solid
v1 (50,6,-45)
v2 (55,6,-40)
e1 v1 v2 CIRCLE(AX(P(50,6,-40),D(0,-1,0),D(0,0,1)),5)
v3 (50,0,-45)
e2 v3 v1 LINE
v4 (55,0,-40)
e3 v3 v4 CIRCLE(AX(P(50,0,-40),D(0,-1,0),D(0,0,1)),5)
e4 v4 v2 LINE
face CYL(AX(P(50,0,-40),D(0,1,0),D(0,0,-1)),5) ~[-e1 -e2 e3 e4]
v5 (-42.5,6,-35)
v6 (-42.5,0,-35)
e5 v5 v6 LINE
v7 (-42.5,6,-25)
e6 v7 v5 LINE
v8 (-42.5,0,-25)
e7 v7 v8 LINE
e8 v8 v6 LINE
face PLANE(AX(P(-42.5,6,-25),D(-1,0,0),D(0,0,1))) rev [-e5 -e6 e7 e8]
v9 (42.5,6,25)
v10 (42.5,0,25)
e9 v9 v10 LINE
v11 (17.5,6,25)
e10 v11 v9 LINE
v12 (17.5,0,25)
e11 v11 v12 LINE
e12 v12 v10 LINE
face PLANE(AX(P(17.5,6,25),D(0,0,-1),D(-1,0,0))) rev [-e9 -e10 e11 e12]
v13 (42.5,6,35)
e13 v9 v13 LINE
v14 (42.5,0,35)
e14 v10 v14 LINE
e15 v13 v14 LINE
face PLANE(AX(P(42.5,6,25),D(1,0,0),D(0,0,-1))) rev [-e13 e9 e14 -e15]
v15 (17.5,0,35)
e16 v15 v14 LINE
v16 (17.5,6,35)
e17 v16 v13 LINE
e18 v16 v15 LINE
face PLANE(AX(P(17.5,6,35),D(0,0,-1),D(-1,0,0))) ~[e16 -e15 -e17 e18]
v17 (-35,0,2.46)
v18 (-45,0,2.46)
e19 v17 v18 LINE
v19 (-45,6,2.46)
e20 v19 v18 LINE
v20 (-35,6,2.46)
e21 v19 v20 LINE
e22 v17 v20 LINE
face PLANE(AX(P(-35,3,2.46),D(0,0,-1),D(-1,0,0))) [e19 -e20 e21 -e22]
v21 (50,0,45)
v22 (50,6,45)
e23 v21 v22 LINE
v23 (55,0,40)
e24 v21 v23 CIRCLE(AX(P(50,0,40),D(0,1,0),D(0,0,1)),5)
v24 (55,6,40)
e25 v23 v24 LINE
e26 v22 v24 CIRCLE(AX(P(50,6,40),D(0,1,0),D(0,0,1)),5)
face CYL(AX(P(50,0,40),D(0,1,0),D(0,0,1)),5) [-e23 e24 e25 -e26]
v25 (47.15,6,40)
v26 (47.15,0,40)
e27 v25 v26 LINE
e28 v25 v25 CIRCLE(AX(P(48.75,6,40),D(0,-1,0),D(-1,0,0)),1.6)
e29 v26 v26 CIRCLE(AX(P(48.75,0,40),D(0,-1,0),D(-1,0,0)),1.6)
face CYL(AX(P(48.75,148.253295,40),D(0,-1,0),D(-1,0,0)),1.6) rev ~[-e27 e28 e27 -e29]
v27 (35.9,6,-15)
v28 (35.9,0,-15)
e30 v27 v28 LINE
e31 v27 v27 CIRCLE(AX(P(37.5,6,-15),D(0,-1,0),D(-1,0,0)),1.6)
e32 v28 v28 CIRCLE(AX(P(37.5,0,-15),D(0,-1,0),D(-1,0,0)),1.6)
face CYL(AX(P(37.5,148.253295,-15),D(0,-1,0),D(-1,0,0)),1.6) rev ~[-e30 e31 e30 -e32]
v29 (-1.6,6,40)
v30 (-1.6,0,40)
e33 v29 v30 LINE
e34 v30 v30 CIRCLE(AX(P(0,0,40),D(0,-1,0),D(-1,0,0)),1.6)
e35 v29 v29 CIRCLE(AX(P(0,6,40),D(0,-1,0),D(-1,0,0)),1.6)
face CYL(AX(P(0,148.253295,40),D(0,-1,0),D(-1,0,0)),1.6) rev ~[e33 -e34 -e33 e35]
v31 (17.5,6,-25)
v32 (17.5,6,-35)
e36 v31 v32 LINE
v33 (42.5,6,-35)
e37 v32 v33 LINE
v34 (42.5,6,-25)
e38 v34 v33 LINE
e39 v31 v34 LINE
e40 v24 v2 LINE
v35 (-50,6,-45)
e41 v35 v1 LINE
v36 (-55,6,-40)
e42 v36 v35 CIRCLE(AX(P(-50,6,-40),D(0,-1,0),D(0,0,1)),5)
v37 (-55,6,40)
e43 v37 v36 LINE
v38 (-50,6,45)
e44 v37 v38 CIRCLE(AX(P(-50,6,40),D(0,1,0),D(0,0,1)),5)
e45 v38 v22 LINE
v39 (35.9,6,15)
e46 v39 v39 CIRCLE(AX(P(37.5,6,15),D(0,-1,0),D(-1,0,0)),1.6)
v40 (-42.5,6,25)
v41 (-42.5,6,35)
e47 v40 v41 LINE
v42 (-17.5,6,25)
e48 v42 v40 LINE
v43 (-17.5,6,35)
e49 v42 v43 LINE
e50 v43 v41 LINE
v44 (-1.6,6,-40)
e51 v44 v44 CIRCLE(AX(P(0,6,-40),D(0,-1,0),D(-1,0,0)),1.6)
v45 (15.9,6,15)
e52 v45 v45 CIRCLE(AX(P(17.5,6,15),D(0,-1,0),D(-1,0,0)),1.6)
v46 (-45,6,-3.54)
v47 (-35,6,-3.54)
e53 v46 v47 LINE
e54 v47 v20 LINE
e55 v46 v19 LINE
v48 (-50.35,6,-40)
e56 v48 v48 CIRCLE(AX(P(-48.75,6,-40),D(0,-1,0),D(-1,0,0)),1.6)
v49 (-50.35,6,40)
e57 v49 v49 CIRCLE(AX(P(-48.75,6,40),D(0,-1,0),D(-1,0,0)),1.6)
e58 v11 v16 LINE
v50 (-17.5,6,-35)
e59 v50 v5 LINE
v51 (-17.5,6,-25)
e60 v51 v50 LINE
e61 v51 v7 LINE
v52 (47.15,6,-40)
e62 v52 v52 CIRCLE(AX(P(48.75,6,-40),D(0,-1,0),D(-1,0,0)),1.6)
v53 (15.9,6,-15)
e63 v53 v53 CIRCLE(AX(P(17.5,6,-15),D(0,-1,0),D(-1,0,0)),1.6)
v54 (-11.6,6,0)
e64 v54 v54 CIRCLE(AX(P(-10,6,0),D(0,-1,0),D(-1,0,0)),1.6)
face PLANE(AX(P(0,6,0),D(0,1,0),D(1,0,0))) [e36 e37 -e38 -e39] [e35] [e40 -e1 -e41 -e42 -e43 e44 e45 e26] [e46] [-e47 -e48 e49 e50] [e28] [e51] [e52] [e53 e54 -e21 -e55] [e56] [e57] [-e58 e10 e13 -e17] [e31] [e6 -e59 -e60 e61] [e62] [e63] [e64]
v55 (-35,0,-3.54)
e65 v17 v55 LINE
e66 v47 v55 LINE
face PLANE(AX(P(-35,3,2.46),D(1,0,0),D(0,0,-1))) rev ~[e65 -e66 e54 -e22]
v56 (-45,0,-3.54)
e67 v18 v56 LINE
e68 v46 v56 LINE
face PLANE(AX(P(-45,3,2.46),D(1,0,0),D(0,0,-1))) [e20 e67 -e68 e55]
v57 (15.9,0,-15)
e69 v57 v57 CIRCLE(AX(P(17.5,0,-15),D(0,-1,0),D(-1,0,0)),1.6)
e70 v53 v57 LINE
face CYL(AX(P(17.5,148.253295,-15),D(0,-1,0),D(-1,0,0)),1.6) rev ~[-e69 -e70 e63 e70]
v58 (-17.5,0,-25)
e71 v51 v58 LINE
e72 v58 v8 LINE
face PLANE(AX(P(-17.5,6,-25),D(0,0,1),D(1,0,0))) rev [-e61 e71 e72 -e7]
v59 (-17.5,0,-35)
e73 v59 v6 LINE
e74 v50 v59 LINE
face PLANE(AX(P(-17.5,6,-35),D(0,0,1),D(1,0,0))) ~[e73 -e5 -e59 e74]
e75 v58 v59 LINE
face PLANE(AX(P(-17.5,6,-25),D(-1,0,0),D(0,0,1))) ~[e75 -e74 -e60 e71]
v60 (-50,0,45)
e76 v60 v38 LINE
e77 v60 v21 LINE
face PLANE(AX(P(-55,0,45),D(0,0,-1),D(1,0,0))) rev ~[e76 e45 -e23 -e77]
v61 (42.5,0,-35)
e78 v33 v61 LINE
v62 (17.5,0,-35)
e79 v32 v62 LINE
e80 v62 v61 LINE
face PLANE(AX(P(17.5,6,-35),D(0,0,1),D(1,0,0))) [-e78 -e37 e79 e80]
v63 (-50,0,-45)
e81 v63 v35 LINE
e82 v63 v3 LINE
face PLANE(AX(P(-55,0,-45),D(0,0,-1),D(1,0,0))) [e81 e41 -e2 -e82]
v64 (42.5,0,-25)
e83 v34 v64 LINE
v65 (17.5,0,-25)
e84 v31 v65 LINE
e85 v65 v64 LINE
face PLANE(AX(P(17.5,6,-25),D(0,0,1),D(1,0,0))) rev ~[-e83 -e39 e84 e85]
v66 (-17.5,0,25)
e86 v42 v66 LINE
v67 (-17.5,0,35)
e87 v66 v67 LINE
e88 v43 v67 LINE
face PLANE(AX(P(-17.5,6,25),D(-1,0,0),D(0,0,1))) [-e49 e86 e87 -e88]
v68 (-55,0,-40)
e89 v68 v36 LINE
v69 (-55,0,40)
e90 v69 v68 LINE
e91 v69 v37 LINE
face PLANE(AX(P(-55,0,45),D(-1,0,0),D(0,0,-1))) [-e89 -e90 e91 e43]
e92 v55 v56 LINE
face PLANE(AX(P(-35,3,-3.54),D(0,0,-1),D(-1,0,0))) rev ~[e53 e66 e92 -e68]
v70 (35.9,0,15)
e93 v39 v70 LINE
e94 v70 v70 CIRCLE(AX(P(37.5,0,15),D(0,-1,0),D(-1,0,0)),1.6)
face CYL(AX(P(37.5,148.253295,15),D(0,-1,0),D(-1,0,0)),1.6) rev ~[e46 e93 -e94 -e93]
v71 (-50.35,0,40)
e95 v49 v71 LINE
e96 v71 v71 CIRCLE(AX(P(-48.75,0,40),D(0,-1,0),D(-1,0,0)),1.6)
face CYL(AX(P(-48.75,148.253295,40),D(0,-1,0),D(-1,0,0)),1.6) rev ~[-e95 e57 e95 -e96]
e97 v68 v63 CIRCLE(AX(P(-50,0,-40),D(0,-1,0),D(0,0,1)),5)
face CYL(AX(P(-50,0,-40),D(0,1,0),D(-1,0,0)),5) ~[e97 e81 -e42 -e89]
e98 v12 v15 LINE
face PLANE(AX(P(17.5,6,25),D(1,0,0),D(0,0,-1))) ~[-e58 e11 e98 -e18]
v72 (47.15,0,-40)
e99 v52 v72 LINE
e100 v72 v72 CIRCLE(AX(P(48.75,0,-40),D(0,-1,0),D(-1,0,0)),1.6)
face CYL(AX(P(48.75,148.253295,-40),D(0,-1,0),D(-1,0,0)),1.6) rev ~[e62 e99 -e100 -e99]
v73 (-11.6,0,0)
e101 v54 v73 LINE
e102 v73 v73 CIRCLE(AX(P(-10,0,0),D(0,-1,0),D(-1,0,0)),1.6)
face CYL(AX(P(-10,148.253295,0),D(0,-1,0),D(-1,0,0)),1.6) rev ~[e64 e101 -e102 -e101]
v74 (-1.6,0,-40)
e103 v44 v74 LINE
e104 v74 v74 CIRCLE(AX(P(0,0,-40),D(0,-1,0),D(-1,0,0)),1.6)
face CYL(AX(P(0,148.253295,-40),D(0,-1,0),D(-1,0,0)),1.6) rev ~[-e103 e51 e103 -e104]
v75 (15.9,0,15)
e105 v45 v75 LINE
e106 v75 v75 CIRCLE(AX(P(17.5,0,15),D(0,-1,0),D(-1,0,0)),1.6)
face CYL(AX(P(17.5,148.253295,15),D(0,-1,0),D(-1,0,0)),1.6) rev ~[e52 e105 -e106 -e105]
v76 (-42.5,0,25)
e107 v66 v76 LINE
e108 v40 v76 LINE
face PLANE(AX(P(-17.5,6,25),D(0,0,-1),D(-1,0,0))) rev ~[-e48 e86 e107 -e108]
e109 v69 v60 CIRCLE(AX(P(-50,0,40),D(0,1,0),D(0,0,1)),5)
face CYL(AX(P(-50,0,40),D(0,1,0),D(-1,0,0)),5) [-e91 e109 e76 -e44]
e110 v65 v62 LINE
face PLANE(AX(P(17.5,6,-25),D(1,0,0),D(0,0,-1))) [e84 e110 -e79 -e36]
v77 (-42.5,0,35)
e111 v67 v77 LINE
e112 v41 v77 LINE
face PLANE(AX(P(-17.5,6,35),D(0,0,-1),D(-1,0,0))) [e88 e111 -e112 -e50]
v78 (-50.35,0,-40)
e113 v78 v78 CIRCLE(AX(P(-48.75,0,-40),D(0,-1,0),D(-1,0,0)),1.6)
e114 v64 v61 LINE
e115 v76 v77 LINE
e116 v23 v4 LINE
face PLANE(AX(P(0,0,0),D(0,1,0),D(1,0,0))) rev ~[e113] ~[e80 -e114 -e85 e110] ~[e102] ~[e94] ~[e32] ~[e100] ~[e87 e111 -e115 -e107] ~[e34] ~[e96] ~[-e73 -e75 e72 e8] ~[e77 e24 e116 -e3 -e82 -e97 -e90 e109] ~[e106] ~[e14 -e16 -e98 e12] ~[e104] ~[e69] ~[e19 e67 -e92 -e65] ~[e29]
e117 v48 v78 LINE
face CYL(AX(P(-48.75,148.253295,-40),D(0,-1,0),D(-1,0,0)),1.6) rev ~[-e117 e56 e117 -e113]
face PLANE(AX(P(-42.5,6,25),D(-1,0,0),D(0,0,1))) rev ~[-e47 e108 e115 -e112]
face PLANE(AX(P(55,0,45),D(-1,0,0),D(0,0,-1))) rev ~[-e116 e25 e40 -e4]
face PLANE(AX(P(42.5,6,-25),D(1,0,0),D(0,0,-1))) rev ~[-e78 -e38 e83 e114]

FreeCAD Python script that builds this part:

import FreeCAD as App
import Part
import Sketcher
from FreeCAD import Vector
Q = App.Units.Quantity


def edges_at(feature, points):
    """Names of the edges that pass closest to the given points."""
    edges = feature.Shape.Edges
    near = lambda p: min(range(len(edges)), key=lambda i: edges[i].distToShape(Part.Vertex(*p))[0])
    return sorted({f"Edge{near(p) + 1}" for p in points})


def add_polygon(sketch, points):
    """Adds a closed chain of lines whose ends are joined by coincident constraints."""
    first, n = sketch.GeometryCount, len(points)
    for a, b in zip(points, points[1:] + points[:1]):
        sketch.addGeometry(Part.LineSegment(App.Vector(*a, 0), App.Vector(*b, 0)), False)
    for i in range(n):
        sketch.addConstraint(Sketcher.Constraint("Coincident", first + i, 2, first + (i + 1) % n, 1))

doc = App.newDocument("Part")
body = doc.addObject("PartDesign::Body", "Body")

sketch1 = body.newObject("Sketcher::SketchObject", "Sketch")
sketch1.AttachmentSupport = (doc.getObject("XZ_Plane"), [""])
sketch1.MapMode = "FlatFace"
add_polygon(sketch1, [(-55, -45), (-55, 45), (55, 45), (55, -45)])
sketch1.addConstraint(Sketcher.Constraint("Vertical", 0))
sketch1.addConstraint(Sketcher.Constraint("Horizontal", 1))
sketch1.addConstraint(Sketcher.Constraint("Vertical", 2))
sketch1.addConstraint(Sketcher.Constraint("Horizontal", 3))
sketch1.addConstraint(Sketcher.Constraint("Symmetric", 0, 2, 2, 2, -1, 1))
sketch1.addConstraint(Sketcher.Constraint("DistanceX", 1, 1, 1, 2, Q("110 mm")))
sketch1.addConstraint(Sketcher.Constraint("DistanceY", 0, 1, 0, 2, Q("90 mm")))
pad1 = body.newObject("PartDesign::Pad", "Pad")
pad1.Profile = sketch1
pad1.Length = 6
pad1.Reversed = True

sketch2 = body.newObject("Sketcher::SketchObject", "Sketch001")
sketch2.AttachmentSupport = (doc.getObject("XZ_Plane"), [""])
sketch2.MapMode = "FlatFace"
sketch2.AttachmentOffset = App.Placement(Vector(0, 0, -6), App.Rotation())
add_polygon(sketch2, [(18, -35), (18, -25), (42, -25), (42, -35)])
sketch2.addConstraint(Sketcher.Constraint("Vertical", 0))
sketch2.addConstraint(Sketcher.Constraint("Horizontal", 1))
sketch2.addConstraint(Sketcher.Constraint("Vertical", 2))
sketch2.addConstraint(Sketcher.Constraint("Horizontal", 3))
sketch2.addConstraint(Sketcher.Constraint("DistanceX", 1, 1, 1, 2, Q("25 mm")))
sketch2.addConstraint(Sketcher.Constraint("DistanceY", 0, 1, 0, 2, Q("10 mm")))
sketch2.addConstraint(Sketcher.Constraint("DistanceY", 0, 2, -1, 1, Q("25 mm")))
sketch2.addConstraint(Sketcher.Constraint("DistanceX", -1, 1, 0, 2, Q("17.5 mm")))
pocket1 = body.newObject("PartDesign::Pocket", "Pocket")
pocket1.Profile = sketch2
pocket1.Type = "ThroughAll"
pocket1.Reversed = True
doc.recompute()

mirrored = body.newObject("PartDesign::Mirrored", "Mirrored")
mirrored.Originals = [pocket1]
mirrored.MirrorPlane = (doc.getObject("XY_Plane"), [""])
body.Tip = mirrored
doc.recompute()

mirrored2 = body.newObject("PartDesign::Mirrored", "Mirrored001")
mirrored2.Originals = [pocket1]
mirrored2.MirrorPlane = (doc.getObject("YZ_Plane"), [""])
body.Tip = mirrored2

sketch3 = body.newObject("Sketcher::SketchObject", "Sketch002")
sketch3.AttachmentSupport = (doc.getObject("XZ_Plane"), [""])
sketch3.MapMode = "FlatFace"
sketch3.AttachmentOffset = App.Placement(Vector(0, 0, -6), App.Rotation())
add_polygon(sketch3, [(-18, 35), (-18, 25), (-42, 25), (-42, 35)])
sketch3.addConstraint(Sketcher.Constraint("Vertical", 0))
sketch3.addConstraint(Sketcher.Constraint("Horizontal", 1))
sketch3.addConstraint(Sketcher.Constraint("Vertical", 2))
sketch3.addConstraint(Sketcher.Constraint("Horizontal", 3))
sketch3.addConstraint(Sketcher.Constraint("DistanceX", 1, 2, 1, 1, Q("25 mm")))
sketch3.addConstraint(Sketcher.Constraint("DistanceY", 0, 2, 0, 1, Q("10 mm")))
sketch3.addConstraint(Sketcher.Constraint("DistanceY", -1, 1, 0, 2, Q("25 mm")))
sketch3.addConstraint(Sketcher.Constraint("DistanceX", 0, 2, -1, 1, Q("17.5 mm")))
pocket2 = body.newObject("PartDesign::Pocket", "Pocket001")
pocket2.Profile = sketch3
pocket2.Type = "ThroughAll"
pocket2.Reversed = True

sketch4 = body.newObject("Sketcher::SketchObject", "Sketch003")
sketch4.AttachmentSupport = (doc.getObject("XZ_Plane"), [""])
sketch4.MapMode = "FlatFace"
sketch4.AttachmentOffset = App.Placement(Vector(0, 0, -6), App.Rotation())
sketch4.addGeometry(Part.Circle(Vector(17.5, -15, 0), Vector(0, 0, 1), 1.6), False)
sketch4.addGeometry(Part.Circle(Vector(37.5, -15, 0), Vector(0, 0, 1), 1.6), False)
sketch4.addGeometry(Part.Circle(Vector(17.5, 15, 0), Vector(0, 0, 1), 1.6), False)
sketch4.addGeometry(Part.Circle(Vector(37.5, 15, 0), Vector(0, 0, 1), 1.6), False)
sketch4.addConstraint(Sketcher.Constraint("Equal", 0, 1))
sketch4.addConstraint(Sketcher.Constraint("Equal", 1, 2))
sketch4.addConstraint(Sketcher.Constraint("Equal", 2, 3))
sketch4.addConstraint(Sketcher.Constraint("Symmetric", 0, 3, 2, 3, -1))
sketch4.addConstraint(Sketcher.Constraint("Symmetric", 1, 3, 3, 3, -1))
sketch4.addConstraint(Sketcher.Constraint("Horizontal", 0, 3, 1, 3))
sketch4.addConstraint(Sketcher.Constraint("Diameter", 0, Q("3.2 mm")))
sketch4.addConstraint(Sketcher.Constraint("DistanceY", 0, 3, -1, 1, Q("15 mm")))
sketch4.addConstraint(Sketcher.Constraint("DistanceX", 0, 3, 1, 3, Q("20 mm")))
sketch4.addConstraint(Sketcher.Constraint("DistanceX", -1, 1, 0, 3, Q("17.5 mm")))
doc.recompute()
hole = body.newObject("PartDesign::Hole", "Hole")
hole.Profile = sketch4
hole.ThreadType = "None"
hole.Diameter = 3.2
hole.DepthType = "ThroughAll"
hole.Reversed = True

sketch5 = body.newObject("Sketcher::SketchObject", "Sketch004")
sketch5.AttachmentSupport = (doc.getObject("XZ_Plane"), [""])
sketch5.MapMode = "FlatFace"
sketch5.AttachmentOffset = App.Placement(Vector(0, 0, -6), App.Rotation())
sketch5.addGeometry(Part.Circle(Vector(48.8, -40, 0), Vector(0, 0, 1), 1.6), False)
sketch5.addGeometry(Part.Circle(Vector(0, -40, 0), Vector(0, 0, 1), 1.6), False)
sketch5.addGeometry(Part.Circle(Vector(-48.8, -40, 0), Vector(0, 0, 1), 1.6), False)
sketch5.addGeometry(Part.Circle(Vector(-48.8, 40, 0), Vector(0, 0, 1), 1.6), False)
sketch5.addGeometry(Part.Circle(Vector(0, 40, 0), Vector(0, 0, 1), 1.6), False)
sketch5.addGeometry(Part.Circle(Vector(48.8, 40, 0), Vector(0, 0, 1), 1.6), False)
sketch5.addGeometry(Part.Circle(Vector(-10, 0, 0), Vector(0, 0, 1), 1.6), False)
sketch5.addConstraint(Sketcher.Constraint("Equal", 0, 1))
sketch5.addConstraint(Sketcher.Constraint("Equal", 1, 2))
sketch5.addConstraint(Sketcher.Constraint("Equal", 2, 3))
sketch5.addConstraint(Sketcher.Constraint("Equal", 3, 4))
sketch5.addConstraint(Sketcher.Constraint("Equal", 4, 5))
sketch5.addConstraint(Sketcher.Constraint("Equal", 5, 6))
sketch5.addConstraint(Sketcher.Constraint("Symmetric", 0, 3, 3, 3, -1, 1))
sketch5.addConstraint(Sketcher.Constraint("Symmetric", 1, 3, 4, 3, -1, 1))
sketch5.addConstraint(Sketcher.Constraint("Symmetric", 2, 3, 5, 3, -1, 1))
sketch5.addConstraint(Sketcher.Constraint("Symmetric", 0, 3, 2, 3, -2))
sketch5.addConstraint(Sketcher.Constraint("PointOnObject", 1, 3, -2))
sketch5.addConstraint(Sketcher.Constraint("PointOnObject", 6, 3, -1))
sketch5.addConstraint(Sketcher.Constraint("Horizontal", 0, 3, 1, 3))
sketch5.addConstraint(Sketcher.Constraint("Diameter", 0, Q("3.2 mm")))
sketch5.addConstraint(Sketcher.Constraint("DistanceY", 0, 3, -1, 1, Q("40 mm")))
sketch5.addConstraint(Sketcher.Constraint("DistanceX", 6, 3, -1, 1, Q("10 mm")))
sketch5.addConstraint(Sketcher.Constraint("DistanceX", 2, 3, 0, 3, Q("97.5 mm")))
doc.recompute()
hole2 = body.newObject("PartDesign::Hole", "Hole001")
hole2.Profile = sketch5
hole2.ThreadType = "None"
hole2.Diameter = 3.2
hole2.DepthType = "ThroughAll"
hole2.Reversed = True
doc.recompute()

fillet = body.newObject("PartDesign::Fillet", "Fillet")
fillet.Base = (hole2, edges_at(hole2, [
    (55, 3, 45),
    (-55, 3, 45),
    (-55, 3, -45),
    (55, 3, -45),
]))
fillet.Radius = 5

sketch6 = body.newObject("Sketcher::SketchObject", "Sketch005")
sketch6.AttachmentSupport = (doc.getObject("XZ_Plane"), [""])
sketch6.MapMode = "FlatFace"
sketch6.AttachmentOffset = App.Placement(Vector(0, 0, -3), App.Rotation())
add_polygon(sketch6, [(-35, -4), (-35, 2), (-45, 2), (-45, -4)])
sketch6.addConstraint(Sketcher.Constraint("Vertical", 0))
sketch6.addConstraint(Sketcher.Constraint("Horizontal", 1))
sketch6.addConstraint(Sketcher.Constraint("Vertical", 2))
sketch6.addConstraint(Sketcher.Constraint("Horizontal", 3))
sketch6.addConstraint(Sketcher.Constraint("DistanceX", 1, 2, 1, 1, Q("10 mm")))
sketch6.addConstraint(Sketcher.Constraint("DistanceY", 0, 1, 0, 2, Q("6 mm")))
sketch6.addConstraint(Sketcher.Constraint("DistanceX", 0, 2, -1, 1, Q("35 mm")))
sketch6.addConstraint(Sketcher.Constraint("DistanceY", -1, 1, 0, 2, Q("2.46 mm")))
pocket3 = body.newObject("PartDesign::Pocket", "Pocket002")
pocket3.Profile = sketch6
pocket3.Type = "ThroughAll"
pocket3.Midplane = True

doc.recompute()
